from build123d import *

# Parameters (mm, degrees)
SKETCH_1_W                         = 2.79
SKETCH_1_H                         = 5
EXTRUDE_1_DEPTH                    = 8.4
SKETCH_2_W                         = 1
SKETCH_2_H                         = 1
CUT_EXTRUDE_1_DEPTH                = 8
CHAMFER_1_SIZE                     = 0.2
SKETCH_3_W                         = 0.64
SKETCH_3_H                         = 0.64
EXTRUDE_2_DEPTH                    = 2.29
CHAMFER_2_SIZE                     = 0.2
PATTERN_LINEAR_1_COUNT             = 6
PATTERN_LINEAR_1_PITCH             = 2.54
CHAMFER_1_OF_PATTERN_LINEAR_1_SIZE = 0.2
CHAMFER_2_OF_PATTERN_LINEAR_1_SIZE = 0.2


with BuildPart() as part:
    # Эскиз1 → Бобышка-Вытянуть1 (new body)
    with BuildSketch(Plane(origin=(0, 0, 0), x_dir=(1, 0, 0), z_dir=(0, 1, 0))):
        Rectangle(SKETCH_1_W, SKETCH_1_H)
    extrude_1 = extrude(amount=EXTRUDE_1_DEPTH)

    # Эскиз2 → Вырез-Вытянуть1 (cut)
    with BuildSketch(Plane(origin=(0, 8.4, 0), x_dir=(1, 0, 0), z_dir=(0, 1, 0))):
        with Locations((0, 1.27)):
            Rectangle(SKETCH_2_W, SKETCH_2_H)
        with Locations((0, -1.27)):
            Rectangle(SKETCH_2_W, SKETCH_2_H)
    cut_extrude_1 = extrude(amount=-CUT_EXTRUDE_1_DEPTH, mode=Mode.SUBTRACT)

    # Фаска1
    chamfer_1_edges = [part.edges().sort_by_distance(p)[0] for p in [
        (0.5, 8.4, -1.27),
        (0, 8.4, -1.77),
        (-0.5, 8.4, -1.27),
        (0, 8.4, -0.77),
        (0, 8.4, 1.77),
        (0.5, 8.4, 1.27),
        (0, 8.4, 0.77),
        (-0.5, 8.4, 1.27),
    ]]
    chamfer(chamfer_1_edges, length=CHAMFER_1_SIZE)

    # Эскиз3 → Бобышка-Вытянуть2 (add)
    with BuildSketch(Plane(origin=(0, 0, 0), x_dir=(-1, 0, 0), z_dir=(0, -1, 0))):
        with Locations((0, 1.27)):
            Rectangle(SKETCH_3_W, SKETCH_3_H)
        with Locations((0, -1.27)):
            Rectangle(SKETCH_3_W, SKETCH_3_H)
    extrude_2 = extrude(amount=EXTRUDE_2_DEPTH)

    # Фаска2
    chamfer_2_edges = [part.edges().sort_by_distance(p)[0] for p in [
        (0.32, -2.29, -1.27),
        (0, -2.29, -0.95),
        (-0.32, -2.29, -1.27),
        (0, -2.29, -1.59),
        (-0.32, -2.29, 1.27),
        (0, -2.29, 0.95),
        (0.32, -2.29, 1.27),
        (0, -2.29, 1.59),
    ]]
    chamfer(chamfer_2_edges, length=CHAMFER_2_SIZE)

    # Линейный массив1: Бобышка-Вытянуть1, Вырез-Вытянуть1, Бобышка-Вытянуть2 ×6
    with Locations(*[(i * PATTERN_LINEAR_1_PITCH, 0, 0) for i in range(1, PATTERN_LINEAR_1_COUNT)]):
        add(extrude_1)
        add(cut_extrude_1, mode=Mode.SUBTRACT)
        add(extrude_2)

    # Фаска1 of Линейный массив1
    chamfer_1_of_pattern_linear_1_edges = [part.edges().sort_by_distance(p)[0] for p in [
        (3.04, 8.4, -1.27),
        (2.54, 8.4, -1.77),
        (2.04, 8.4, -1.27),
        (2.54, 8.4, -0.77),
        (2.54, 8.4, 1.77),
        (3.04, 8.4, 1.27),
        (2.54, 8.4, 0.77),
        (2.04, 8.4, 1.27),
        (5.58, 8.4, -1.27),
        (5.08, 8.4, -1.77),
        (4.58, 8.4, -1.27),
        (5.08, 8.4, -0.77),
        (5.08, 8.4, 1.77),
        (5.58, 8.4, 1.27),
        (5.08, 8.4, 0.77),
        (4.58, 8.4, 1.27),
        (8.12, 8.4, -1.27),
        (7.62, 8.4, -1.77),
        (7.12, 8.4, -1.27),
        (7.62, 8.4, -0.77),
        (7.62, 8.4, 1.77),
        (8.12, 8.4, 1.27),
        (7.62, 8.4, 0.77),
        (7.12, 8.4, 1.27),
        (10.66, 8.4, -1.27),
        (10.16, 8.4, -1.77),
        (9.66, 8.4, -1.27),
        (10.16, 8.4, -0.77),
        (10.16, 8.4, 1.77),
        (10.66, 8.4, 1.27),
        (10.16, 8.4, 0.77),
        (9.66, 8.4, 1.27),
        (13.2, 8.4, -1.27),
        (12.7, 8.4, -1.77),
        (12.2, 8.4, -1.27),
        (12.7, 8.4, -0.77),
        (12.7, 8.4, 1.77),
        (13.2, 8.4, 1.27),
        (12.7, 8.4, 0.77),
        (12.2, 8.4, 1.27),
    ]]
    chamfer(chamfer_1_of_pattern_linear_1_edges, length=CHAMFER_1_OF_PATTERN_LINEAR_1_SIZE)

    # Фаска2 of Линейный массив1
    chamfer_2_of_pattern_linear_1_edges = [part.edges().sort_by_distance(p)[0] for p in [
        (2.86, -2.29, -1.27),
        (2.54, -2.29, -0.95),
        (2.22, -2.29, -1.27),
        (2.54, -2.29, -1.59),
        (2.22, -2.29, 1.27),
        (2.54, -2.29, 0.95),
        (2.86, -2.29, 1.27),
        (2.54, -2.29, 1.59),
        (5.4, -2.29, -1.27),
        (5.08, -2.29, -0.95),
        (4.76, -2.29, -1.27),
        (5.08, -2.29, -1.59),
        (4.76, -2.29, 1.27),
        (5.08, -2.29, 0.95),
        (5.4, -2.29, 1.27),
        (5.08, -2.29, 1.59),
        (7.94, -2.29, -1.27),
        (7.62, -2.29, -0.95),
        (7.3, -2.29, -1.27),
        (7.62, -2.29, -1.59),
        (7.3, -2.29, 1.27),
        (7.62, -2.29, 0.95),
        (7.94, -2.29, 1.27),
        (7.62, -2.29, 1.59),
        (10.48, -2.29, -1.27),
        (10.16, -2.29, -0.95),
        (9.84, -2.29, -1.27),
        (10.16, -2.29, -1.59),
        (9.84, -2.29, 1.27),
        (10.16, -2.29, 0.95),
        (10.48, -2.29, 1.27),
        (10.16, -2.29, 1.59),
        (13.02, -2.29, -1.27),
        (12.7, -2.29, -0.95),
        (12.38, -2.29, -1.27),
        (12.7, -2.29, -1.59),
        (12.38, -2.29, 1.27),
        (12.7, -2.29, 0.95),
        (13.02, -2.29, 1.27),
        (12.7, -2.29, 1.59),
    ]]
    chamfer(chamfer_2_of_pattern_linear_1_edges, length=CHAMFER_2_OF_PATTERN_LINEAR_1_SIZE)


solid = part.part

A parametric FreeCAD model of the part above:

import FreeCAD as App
import Part
import Sketcher
Q = App.Units.Quantity


def edges_at(feature, points):
    """Names of the edges that pass closest to the given points."""
    edges = feature.Shape.Edges
    near = lambda p: min(range(len(edges)), key=lambda i: edges[i].distToShape(Part.Vertex(*p))[0])
    return sorted({f"Edge{near(p) + 1}" for p in points})

doc = App.newDocument("Part")
params = doc.addObject("Spreadsheet::Sheet", "Params")
for row, (alias, value) in enumerate([
    ("sketch1_height", "5 mm"),
    ("sketch1_width", "2.79 mm"),
    ("pad1_length", "8.4 mm"),
    ("sketch2_width", "1 mm"),
    ("pocket1_length", "8 mm"),
    ("chamfer_size", "0.2 mm"),
    ("sketch3_width", "0.64 mm"),
    ("pad2_length", "2.29 mm"),
    ("chamfer2_size", "0.2 mm"),
    ("linearpattern_pitch", "2.54 mm"),
    ("chamfer3_size", "0.2 mm"),
    ("chamfer4_size", "0.2 mm"),
], start=1):
    params.set(f"A{row}", alias)
    params.set(f"B{row}", "=" + value)
    params.setAlias(f"B{row}", alias)

body = doc.addObject("PartDesign::Body", "Body")

sketch1 = body.newObject("Sketcher::SketchObject", "Sketch")
sketch1.AttachmentSupport = (doc.getObject("XZ_Plane"), [""])
sketch1.MapMode = "FlatFace"
sketch1.addGeometry([
    Part.LineSegment(App.Vector(-1.4, -2.5, 0), App.Vector(-1.4, 2.5, 0)),
    Part.LineSegment(App.Vector(-1.4, 2.5, 0), App.Vector(1.4, 2.5, 0)),
    Part.LineSegment(App.Vector(1.4, 2.5, 0), App.Vector(1.4, -2.5, 0)),
    Part.LineSegment(App.Vector(1.4, -2.5, 0), App.Vector(-1.4, -2.5, 0)),
], False)
sketch1.addConstraint([
    Sketcher.Constraint("Coincident", 0, 2, 1, 1),
    Sketcher.Constraint("Coincident", 1, 2, 2, 1),
    Sketcher.Constraint("Coincident", 2, 2, 3, 1),
    Sketcher.Constraint("Coincident", 3, 2, 0, 1),
    Sketcher.Constraint("Vertical", 0),
    Sketcher.Constraint("Horizontal", 1),
    Sketcher.Constraint("Vertical", 2),
    Sketcher.Constraint("Horizontal", 3),
    Sketcher.Constraint("Symmetric", 0, 2, 2, 2, -1, 1),
    Sketcher.Constraint("DistanceY", 0, 1, 0, 2, Q("5 mm")),
    Sketcher.Constraint("DistanceX", 1, 1, 1, 2, Q("2.79 mm")),
])
sketch1.setExpression("Constraints[9]", "Params.sketch1_height")
sketch1.setExpression("Constraints[10]", "Params.sketch1_width")
pad1 = body.newObject("PartDesign::Pad", "Pad")
pad1.Profile = sketch1
pad1.setExpression("Length", "Params.pad1_length")
pad1.Reversed = True

sketch2 = body.newObject("Sketcher::SketchObject", "Sketch001")
sketch2.AttachmentSupport = (doc.getObject("XZ_Plane"), [""])
sketch2.MapMode = "FlatFace"
sketch2.AttachmentOffset = App.Placement(App.Vector(0, 0, -8.4), App.Rotation())
sketch2.addGeometry([
    Part.LineSegment(App.Vector(-0.5, -1.8, 0), App.Vector(-0.5, -0.8, 0)),
    Part.LineSegment(App.Vector(-0.5, -0.8, 0), App.Vector(0.5, -0.8, 0)),
    Part.LineSegment(App.Vector(0.5, -0.8, 0), App.Vector(0.5, -1.8, 0)),
    Part.LineSegment(App.Vector(0.5, -1.8, 0), App.Vector(-0.5, -1.8, 0)),
    Part.LineSegment(App.Vector(-0.5, 0.8, 0), App.Vector(-0.5, 1.8, 0)),
    Part.LineSegment(App.Vector(-0.5, 1.8, 0), App.Vector(0.5, 1.8, 0)),
    Part.LineSegment(App.Vector(0.5, 1.8, 0), App.Vector(0.5, 0.8, 0)),
    Part.LineSegment(App.Vector(0.5, 0.8, 0), App.Vector(-0.5, 0.8, 0)),
], False)
sketch2.addConstraint([
    Sketcher.Constraint("Coincident", 0, 2, 1, 1),
    Sketcher.Constraint("Coincident", 1, 2, 2, 1),
    Sketcher.Constraint("Coincident", 2, 2, 3, 1),
    Sketcher.Constraint("Coincident", 3, 2, 0, 1),
    Sketcher.Constraint("Coincident", 4, 2, 5, 1),
    Sketcher.Constraint("Coincident", 5, 2, 6, 1),
    Sketcher.Constraint("Coincident", 6, 2, 7, 1),
    Sketcher.Constraint("Coincident", 7, 2, 4, 1),
    Sketcher.Constraint("Vertical", 0),
    Sketcher.Constraint("Horizontal", 1),
    Sketcher.Constraint("Vertical", 2),
    Sketcher.Constraint("Horizontal", 3),
    Sketcher.Constraint("Vertical", 4),
    Sketcher.Constraint("Horizontal", 5),
    Sketcher.Constraint("Vertical", 6),
    Sketcher.Constraint("Horizontal", 7),
    Sketcher.Constraint("Symmetric", 2, 2, 4, 2, -1, 1),
    Sketcher.Constraint("Symmetric", 0, 2, 6, 2, -1, 1),
    Sketcher.Constraint("Vertical", 3, 2, 4, 2),
    Sketcher.Constraint("Equal", 7, 0),
    Sketcher.Constraint("DistanceX", 1, 1, 1, 2, Q("1 mm")),
    Sketcher.Constraint("DistanceY", 0, 2, -1, 1, Q("0.77 mm")),
])
sketch2.setExpression("Constraints[20]", "Params.sketch2_width")
pocket1 = body.newObject("PartDesign::Pocket", "Pocket")
pocket1.Profile = sketch2
pocket1.setExpression("Length", "Params.pocket1_length")
pocket1.Reversed = True
doc.recompute()

chamfer = body.newObject("PartDesign::Chamfer", "Chamfer")
chamfer.Base = (pocket1, edges_at(pocket1, [
    (0.5, 8.4, -1.27),
    (0, 8.4, -1.77),
    (-0.5, 8.4, -1.27),
    (0, 8.4, -0.77),
    (0, 8.4, 1.77),
    (0.5, 8.4, 1.27),
    (0, 8.4, 0.77),
    (-0.5, 8.4, 1.27),
]))
chamfer.setExpression("Size", "Params.chamfer_size")

sketch3 = body.newObject("Sketcher::SketchObject", "Sketch002")
sketch3.AttachmentSupport = (doc.getObject("XZ_Plane"), [""])
sketch3.MapMode = "FlatFace"
sketch3.addGeometry([
    Part.LineSegment(App.Vector(0.3, -1.6, 0), App.Vector(0.3, -0.9, 0)),
    Part.LineSegment(App.Vector(0.3, -0.9, 0), App.Vector(-0.3, -0.9, 0)),
    Part.LineSegment(App.Vector(-0.3, -0.9, 0), App.Vector(-0.3, -1.6, 0)),
    Part.LineSegment(App.Vector(-0.3, -1.6, 0), App.Vector(0.3, -1.6, 0)),
    Part.LineSegment(App.Vector(0.3, 0.9, 0), App.Vector(0.3, 1.6, 0)),
    Part.LineSegment(App.Vector(0.3, 1.6, 0), App.Vector(-0.3, 1.6, 0)),
    Part.LineSegment(App.Vector(-0.3, 1.6, 0), App.Vector(-0.3, 0.9, 0)),
    Part.LineSegment(App.Vector(-0.3, 0.9, 0), App.Vector(0.3, 0.9, 0)),
], False)
sketch3.addConstraint([
    Sketcher.Constraint("Coincident", 0, 2, 1, 1),
    Sketcher.Constraint("Coincident", 1, 2, 2, 1),
    Sketcher.Constraint("Coincident", 2, 2, 3, 1),
    Sketcher.Constraint("Coincident", 3, 2, 0, 1),
    Sketcher.Constraint("Coincident", 4, 2, 5, 1),
    Sketcher.Constraint("Coincident", 5, 2, 6, 1),
    Sketcher.Constraint("Coincident", 6, 2, 7, 1),
    Sketcher.Constraint("Coincident", 7, 2, 4, 1),
    Sketcher.Constraint("Vertical", 0),
    Sketcher.Constraint("Horizontal", 1),
    Sketcher.Constraint("Vertical", 2),
    Sketcher.Constraint("Horizontal", 3),
    Sketcher.Constraint("Vertical", 4),
    Sketcher.Constraint("Horizontal", 5),
    Sketcher.Constraint("Vertical", 6),
    Sketcher.Constraint("Horizontal", 7),
    Sketcher.Constraint("Symmetric", 2, 2, 4, 2, -1, 1),
    Sketcher.Constraint("Symmetric", 0, 2, 6, 2, -1, 1),
    Sketcher.Constraint("Vertical", 3, 2, 4, 2),
    Sketcher.Constraint("Equal", 7, 0),
    Sketcher.Constraint("DistanceX", 1, 2, 1, 1, Q("0.64 mm")),
    Sketcher.Constraint("DistanceY", 1, 2, 6, 2, Q("1.9 mm")),
])
sketch3.setExpression("Constraints[20]", "Params.sketch3_width")
pad2 = body.newObject("PartDesign::Pad", "Pad001")
pad2.Profile = sketch3
pad2.setExpression("Length", "Params.pad2_length")
doc.recompute()

chamfer2 = body.newObject("PartDesign::Chamfer", "Chamfer001")
chamfer2.Base = (pad2, edges_at(pad2, [
    (0.32, -2.29, -1.27),
    (0, -2.29, -0.95),
    (-0.32, -2.29, -1.27),
    (0, -2.29, -1.59),
    (-0.32, -2.29, 1.27),
    (0, -2.29, 0.95),
    (0.32, -2.29, 1.27),
    (0, -2.29, 1.59),
]))
chamfer2.setExpression("Size", "Params.chamfer2_size")
doc.recompute()

linearpattern = body.newObject("PartDesign::LinearPattern", "LinearPattern")
linearpattern.Originals = [pad1, pocket1, pad2]
linearpattern.Direction = (doc.getObject("X_Axis"), [""])
linearpattern.Mode = "offset"
linearpattern.setExpression("Offset", "Params.linearpattern_pitch")
linearpattern.Occurrences = 6
body.Tip = linearpattern
doc.recompute()

chamfer3 = body.newObject("PartDesign::Chamfer", "Chamfer002")
chamfer3.Base = (linearpattern, edges_at(linearpattern, [
    (3.04, 8.4, -1.27),
    (2.54, 8.4, -1.77),
    (2.04, 8.4, -1.27),
    (2.54, 8.4, -0.77),
    (2.54, 8.4, 1.77),
    (3.04, 8.4, 1.27),
    (2.54, 8.4, 0.77),
    (2.04, 8.4, 1.27),
    (5.58, 8.4, -1.27),
    (5.08, 8.4, -1.77),
    (4.58, 8.4, -1.27),
    (5.08, 8.4, -0.77),
    (5.08, 8.4, 1.77),
    (5.58, 8.4, 1.27),
    (5.08, 8.4, 0.77),
    (4.58, 8.4, 1.27),
    (8.12, 8.4, -1.27),
    (7.62, 8.4, -1.77),
    (7.12, 8.4, -1.27),
    (7.62, 8.4, -0.77),
    (7.62, 8.4, 1.77),
    (8.12, 8.4, 1.27),
    (7.62, 8.4, 0.77),
    (7.12, 8.4, 1.27),
    (10.66, 8.4, -1.27),
    (10.16, 8.4, -1.77),
    (9.66, 8.4, -1.27),
    (10.16, 8.4, -0.77),
    (10.16, 8.4, 1.77),
    (10.66, 8.4, 1.27),
    (10.16, 8.4, 0.77),
    (9.66, 8.4, 1.27),
    (13.2, 8.4, -1.27),
    (12.7, 8.4, -1.77),
    (12.2, 8.4, -1.27),
    (12.7, 8.4, -0.77),
    (12.7, 8.4, 1.77),
    (13.2, 8.4, 1.27),
    (12.7, 8.4, 0.77),
    (12.2, 8.4, 1.27),
]))
chamfer3.setExpression("Size", "Params.chamfer3_size")
doc.recompute()

chamfer4 = body.newObject("PartDesign::Chamfer", "Chamfer003")
chamfer4.Base = (chamfer3, edges_at(chamfer3, [
    (2.86, -2.29, -1.27),
    (2.54, -2.29, -0.95),
    (2.22, -2.29, -1.27),
    (2.54, -2.29, -1.59),
    (2.22, -2.29, 1.27),
    (2.54, -2.29, 0.95),
    (2.86, -2.29, 1.27),
    (2.54, -2.29, 1.59),
    (5.4, -2.29, -1.27),
    (5.08, -2.29, -0.95),
    (4.76, -2.29, -1.27),
    (5.08, -2.29, -1.59),
    (4.76, -2.29, 1.27),
    (5.08, -2.29, 0.95),
    (5.4, -2.29, 1.27),
    (5.08, -2.29, 1.59),
    (7.94, -2.29, -1.27),
    (7.62, -2.29, -0.95),
    (7.3, -2.29, -1.27),
    (7.62, -2.29, -1.59),
    (7.3, -2.29, 1.27),
    (7.62, -2.29, 0.95),
    (7.94, -2.29, 1.27),
    (7.62, -2.29, 1.59),
    (10.48, -2.29, -1.27),
    (10.16, -2.29, -0.95),
    (9.84, -2.29, -1.27),
    (10.16, -2.29, -1.59),
    (9.84, -2.29, 1.27),
    (10.16, -2.29, 0.95),
    (10.48, -2.29, 1.27),
    (10.16, -2.29, 1.59),
    (13.02, -2.29, -1.27),
    (12.7, -2.29, -0.95),
    (12.38, -2.29, -1.27),
    (12.7, -2.29, -1.59),
    (12.38, -2.29, 1.27),
    (12.7, -2.29, 0.95),
    (13.02, -2.29, 1.27),
    (12.7, -2.29, 1.59),
]))
chamfer4.setExpression("Size", "Params.chamfer4_size")

doc.recompute()
